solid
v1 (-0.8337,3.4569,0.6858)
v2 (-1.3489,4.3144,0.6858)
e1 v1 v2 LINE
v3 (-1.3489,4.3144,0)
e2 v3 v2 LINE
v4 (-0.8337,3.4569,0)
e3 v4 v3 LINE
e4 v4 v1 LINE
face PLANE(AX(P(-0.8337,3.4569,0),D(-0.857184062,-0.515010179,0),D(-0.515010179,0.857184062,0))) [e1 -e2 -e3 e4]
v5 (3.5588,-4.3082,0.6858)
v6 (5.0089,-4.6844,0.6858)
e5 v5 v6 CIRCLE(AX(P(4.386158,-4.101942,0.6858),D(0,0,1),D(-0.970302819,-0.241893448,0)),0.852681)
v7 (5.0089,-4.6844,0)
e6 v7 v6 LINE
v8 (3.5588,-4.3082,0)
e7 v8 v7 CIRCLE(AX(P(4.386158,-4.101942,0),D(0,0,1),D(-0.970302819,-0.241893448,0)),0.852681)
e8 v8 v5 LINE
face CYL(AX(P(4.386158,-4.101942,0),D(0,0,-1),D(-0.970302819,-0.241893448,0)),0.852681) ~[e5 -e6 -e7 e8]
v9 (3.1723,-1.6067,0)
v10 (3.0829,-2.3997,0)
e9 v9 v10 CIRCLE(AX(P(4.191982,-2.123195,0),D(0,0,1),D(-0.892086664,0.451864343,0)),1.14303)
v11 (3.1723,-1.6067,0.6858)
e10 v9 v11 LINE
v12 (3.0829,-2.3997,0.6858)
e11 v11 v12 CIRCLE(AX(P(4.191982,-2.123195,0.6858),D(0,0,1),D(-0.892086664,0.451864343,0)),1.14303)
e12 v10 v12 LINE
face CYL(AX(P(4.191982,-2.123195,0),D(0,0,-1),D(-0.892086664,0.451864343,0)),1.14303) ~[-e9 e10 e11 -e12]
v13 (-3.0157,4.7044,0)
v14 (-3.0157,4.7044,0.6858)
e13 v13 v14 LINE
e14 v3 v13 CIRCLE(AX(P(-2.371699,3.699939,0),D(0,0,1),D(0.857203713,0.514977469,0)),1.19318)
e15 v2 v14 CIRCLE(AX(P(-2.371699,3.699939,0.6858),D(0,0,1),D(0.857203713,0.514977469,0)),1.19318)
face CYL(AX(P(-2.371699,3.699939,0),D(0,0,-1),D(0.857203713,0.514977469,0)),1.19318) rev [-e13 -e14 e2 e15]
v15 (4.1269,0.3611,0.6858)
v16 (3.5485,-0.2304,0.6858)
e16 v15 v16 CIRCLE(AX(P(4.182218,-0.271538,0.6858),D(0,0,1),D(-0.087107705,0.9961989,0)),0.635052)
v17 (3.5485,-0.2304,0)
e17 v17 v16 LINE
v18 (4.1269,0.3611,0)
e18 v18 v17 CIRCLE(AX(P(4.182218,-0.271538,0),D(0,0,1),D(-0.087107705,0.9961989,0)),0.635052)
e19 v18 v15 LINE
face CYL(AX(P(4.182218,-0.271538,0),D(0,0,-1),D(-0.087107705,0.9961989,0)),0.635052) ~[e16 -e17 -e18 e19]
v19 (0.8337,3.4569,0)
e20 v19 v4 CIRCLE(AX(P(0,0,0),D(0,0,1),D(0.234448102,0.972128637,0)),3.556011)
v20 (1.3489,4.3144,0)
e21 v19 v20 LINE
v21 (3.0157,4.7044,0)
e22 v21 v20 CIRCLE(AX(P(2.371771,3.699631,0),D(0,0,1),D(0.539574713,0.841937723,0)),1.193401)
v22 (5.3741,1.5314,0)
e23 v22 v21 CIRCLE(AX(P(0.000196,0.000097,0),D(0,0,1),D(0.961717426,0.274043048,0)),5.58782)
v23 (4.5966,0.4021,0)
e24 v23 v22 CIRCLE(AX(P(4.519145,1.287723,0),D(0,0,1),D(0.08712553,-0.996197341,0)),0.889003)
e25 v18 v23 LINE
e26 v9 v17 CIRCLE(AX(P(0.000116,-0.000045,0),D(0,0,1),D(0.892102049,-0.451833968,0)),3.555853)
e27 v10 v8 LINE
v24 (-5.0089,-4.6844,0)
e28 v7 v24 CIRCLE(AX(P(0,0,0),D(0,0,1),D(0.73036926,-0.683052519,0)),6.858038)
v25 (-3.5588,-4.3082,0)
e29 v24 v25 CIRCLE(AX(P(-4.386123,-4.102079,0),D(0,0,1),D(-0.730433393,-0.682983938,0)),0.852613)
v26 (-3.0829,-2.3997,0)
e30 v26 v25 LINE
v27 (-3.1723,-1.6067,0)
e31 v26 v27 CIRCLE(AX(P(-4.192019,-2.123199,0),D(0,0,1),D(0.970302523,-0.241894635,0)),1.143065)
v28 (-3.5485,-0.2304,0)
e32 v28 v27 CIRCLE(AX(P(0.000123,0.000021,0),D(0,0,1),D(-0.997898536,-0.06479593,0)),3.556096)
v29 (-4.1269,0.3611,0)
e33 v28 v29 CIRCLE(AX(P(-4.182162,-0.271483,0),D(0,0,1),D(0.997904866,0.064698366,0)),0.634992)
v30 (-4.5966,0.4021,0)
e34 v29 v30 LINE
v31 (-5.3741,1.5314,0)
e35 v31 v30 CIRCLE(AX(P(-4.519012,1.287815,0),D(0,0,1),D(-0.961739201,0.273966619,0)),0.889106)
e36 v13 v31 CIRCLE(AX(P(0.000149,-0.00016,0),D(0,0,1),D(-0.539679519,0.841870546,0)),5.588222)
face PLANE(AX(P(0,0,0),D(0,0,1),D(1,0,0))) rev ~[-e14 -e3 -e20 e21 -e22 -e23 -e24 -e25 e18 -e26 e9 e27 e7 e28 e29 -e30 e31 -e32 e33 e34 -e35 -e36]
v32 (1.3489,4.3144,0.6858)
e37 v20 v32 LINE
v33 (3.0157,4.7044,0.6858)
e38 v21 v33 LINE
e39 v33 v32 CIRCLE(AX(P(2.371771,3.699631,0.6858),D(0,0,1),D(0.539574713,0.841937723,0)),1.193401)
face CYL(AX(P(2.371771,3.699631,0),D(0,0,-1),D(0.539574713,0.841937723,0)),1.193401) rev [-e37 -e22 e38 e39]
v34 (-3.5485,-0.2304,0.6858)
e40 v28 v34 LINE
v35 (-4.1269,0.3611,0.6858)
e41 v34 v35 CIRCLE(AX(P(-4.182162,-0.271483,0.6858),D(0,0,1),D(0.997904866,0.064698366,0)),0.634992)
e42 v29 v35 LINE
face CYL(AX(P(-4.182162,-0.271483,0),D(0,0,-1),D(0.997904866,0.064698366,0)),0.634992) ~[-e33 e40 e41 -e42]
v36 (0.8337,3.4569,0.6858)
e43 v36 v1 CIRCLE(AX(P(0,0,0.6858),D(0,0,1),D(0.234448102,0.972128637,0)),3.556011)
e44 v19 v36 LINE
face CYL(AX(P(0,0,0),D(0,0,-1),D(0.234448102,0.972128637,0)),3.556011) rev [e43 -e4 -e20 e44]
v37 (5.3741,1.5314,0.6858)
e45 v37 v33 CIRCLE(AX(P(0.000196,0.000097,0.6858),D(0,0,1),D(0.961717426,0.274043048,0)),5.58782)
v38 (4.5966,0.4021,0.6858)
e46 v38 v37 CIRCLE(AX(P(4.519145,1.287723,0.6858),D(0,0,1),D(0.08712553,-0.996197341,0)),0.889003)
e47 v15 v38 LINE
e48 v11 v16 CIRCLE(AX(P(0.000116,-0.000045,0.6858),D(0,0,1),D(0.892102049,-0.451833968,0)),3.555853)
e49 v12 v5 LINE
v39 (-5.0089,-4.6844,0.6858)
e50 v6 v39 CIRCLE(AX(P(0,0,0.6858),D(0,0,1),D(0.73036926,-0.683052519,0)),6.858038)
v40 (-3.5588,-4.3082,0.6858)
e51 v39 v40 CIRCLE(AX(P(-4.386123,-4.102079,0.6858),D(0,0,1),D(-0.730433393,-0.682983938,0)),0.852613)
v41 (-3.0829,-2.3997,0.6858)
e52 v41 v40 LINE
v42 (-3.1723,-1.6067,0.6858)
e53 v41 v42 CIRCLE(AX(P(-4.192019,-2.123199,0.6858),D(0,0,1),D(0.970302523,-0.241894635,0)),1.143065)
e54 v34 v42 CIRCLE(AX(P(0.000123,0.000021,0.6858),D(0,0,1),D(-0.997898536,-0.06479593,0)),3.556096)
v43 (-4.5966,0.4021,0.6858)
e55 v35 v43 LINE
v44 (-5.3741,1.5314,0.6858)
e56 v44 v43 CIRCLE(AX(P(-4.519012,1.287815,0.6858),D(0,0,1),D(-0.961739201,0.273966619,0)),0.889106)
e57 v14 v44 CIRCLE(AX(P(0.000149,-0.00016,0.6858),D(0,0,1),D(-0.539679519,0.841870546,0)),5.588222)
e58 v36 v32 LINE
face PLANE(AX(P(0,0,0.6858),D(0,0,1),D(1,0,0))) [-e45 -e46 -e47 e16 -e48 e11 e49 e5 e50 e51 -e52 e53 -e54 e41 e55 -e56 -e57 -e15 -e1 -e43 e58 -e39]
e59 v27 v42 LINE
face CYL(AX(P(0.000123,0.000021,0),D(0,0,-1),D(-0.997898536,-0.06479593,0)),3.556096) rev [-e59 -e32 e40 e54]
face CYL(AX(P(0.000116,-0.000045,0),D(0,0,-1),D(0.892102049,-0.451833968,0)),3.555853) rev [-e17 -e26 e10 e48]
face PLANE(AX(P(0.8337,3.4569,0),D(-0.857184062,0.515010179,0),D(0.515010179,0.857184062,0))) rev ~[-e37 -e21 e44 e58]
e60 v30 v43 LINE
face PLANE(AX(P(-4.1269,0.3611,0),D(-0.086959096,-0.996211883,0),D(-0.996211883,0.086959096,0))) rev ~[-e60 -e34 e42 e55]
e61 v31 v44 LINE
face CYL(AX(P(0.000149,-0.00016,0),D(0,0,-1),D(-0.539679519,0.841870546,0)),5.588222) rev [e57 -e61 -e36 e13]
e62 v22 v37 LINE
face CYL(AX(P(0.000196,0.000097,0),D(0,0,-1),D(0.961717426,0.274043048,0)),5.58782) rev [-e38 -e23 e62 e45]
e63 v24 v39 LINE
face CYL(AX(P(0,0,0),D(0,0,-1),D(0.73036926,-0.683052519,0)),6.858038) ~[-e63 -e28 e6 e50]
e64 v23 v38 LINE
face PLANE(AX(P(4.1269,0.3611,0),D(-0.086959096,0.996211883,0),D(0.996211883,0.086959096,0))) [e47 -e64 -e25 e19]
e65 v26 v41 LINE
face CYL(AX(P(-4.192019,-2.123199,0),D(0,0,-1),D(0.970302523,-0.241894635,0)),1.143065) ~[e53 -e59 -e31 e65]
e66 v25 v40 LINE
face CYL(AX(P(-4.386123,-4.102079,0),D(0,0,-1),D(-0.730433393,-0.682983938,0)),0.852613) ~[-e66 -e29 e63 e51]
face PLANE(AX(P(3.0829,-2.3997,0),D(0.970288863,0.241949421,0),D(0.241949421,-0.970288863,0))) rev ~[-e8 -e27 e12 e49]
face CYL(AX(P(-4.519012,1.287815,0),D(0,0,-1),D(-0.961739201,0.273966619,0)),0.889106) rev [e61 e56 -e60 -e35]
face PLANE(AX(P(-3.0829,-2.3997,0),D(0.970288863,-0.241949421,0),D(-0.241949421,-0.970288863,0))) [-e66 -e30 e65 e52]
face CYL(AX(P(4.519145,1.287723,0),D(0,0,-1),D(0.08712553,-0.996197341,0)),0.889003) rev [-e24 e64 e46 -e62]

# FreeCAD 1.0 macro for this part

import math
import FreeCAD as App
import Part
import Sketcher
from FreeCAD import Vector
Q = App.Units.Quantity

doc = App.newDocument("Part")
body = doc.addObject("PartDesign::Body", "Body")

# Sketch on XY plane
sketch1 = doc.addObject("Sketcher::SketchObject", "Sketch")
body.addObject(sketch1)
sketch1.AttachmentSupport = (doc.XY_Plane, [""])
sketch1.MapMode = "FlatFace"
sketch1.addGeometry(Part.ArcOfCircle(Part.Circle(Vector(4.39, -4.1, 0), Vector(0, 0, 1), 0.85), math.radians(-166), math.radians(-43)), False)
sketch1.addGeometry(Part.ArcOfCircle(Part.Circle(Vector(0, 0, 0), Vector(0, 0, 1), 6.86), math.radians(-43), math.radians(223)), False)
sketch1.addGeometry(Part.ArcOfCircle(Part.Circle(Vector(-4.39, -4.1, 0), Vector(0, 0, 1), 0.85), math.radians(-137), math.radians(-14)), False)
sketch1.addGeometry(Part.LineSegment(Vector(-3.56, -4.31, 0), Vector(-3.08, -2.4, 0)), False)
sketch1.addGeometry(Part.ArcOfCircle(Part.Circle(Vector(-4.19, -2.12, 0), Vector(0, 0, 1), 1.14), math.radians(-14), math.radians(27)), False)
sketch1.addGeometry(Part.ArcOfCircle(Part.Circle(Vector(0, 0, 0), Vector(0, 0, 1), 3.56), math.radians(-176), math.radians(-153)), False)
sketch1.addGeometry(Part.ArcOfCircle(Part.Circle(Vector(-4.18, -0.27, 0), Vector(0, 0, 1), 0.64), math.radians(4), math.radians(85)), False)
sketch1.addGeometry(Part.LineSegment(Vector(-4.13, 0.36, 0), Vector(-4.6, 0.4, 0)), False)
sketch1.addGeometry(Part.ArcOfCircle(Part.Circle(Vector(-4.52, 1.29, 0), Vector(0, 0, 1), 0.89), math.radians(164), math.radians(265)), False)
sketch1.addGeometry(Part.ArcOfCircle(Part.Circle(Vector(0, 0, 0), Vector(0, 0, 1), 5.59), math.radians(123), math.radians(164)), False)
sketch1.addGeometry(Part.ArcOfCircle(Part.Circle(Vector(-2.37, 3.7, 0), Vector(0, 0, 1), 1.19), math.radians(31), math.radians(123)), False)
sketch1.addGeometry(Part.LineSegment(Vector(-1.35, 4.31, 0), Vector(-0.83, 3.46, 0)), False)
sketch1.addGeometry(Part.ArcOfCircle(Part.Circle(Vector(0, 0, 0), Vector(0, 0, 1), 3.56), math.radians(76), math.radians(104)), False)
sketch1.addGeometry(Part.LineSegment(Vector(0.83, 3.46, 0), Vector(1.35, 4.31, 0)), False)
sketch1.addGeometry(Part.ArcOfCircle(Part.Circle(Vector(2.37, 3.7, 0), Vector(0, 0, 1), 1.19), math.radians(57), math.radians(149)), False)
sketch1.addGeometry(Part.ArcOfCircle(Part.Circle(Vector(0, 0, 0), Vector(0, 0, 1), 5.59), math.radians(16), math.radians(57)), False)
sketch1.addGeometry(Part.ArcOfCircle(Part.Circle(Vector(4.52, 1.29, 0), Vector(0, 0, 1), 0.89), math.radians(-85), math.radians(16)), False)
sketch1.addGeometry(Part.LineSegment(Vector(4.6, 0.4, 0), Vector(4.13, 0.36, 0)), False)
sketch1.addGeometry(Part.ArcOfCircle(Part.Circle(Vector(4.18, -0.27, 0), Vector(0, 0, 1), 0.64), math.radians(95), math.radians(176)), False)
sketch1.addGeometry(Part.ArcOfCircle(Part.Circle(Vector(0, 0, 0), Vector(0, 0, 1), 3.56), math.radians(-27), math.radians(-4)), False)
sketch1.addGeometry(Part.ArcOfCircle(Part.Circle(Vector(4.19, -2.12, 0), Vector(0, 0, 1), 1.14), math.radians(153), math.radians(194)), False)
sketch1.addGeometry(Part.LineSegment(Vector(3.08, -2.4, 0), Vector(3.56, -4.31, 0)), False)
sketch1.addConstraint(Sketcher.Constraint("Tangent", 0, 2, 1, 1))
sketch1.addConstraint(Sketcher.Constraint("Tangent", 1, 2, 2, 1))
sketch1.addConstraint(Sketcher.Constraint("Tangent", 2, 2, 3, 1))
sketch1.addConstraint(Sketcher.Constraint("Tangent", 3, 2, 4, 1))
sketch1.addConstraint(Sketcher.Constraint("Tangent", 4, 2, 5, 2))
sketch1.addConstraint(Sketcher.Constraint("Tangent", 5, 1, 6, 1))
sketch1.addConstraint(Sketcher.Constraint("Tangent", 6, 2, 7, 1))
sketch1.addConstraint(Sketcher.Constraint("Tangent", 7, 2, 8, 2))
sketch1.addConstraint(Sketcher.Constraint("Tangent", 8, 1, 9, 2))
sketch1.addConstraint(Sketcher.Constraint("Tangent", 9, 1, 10, 2))
sketch1.addConstraint(Sketcher.Constraint("Tangent", 10, 1, 11, 1))
sketch1.addConstraint(Sketcher.Constraint("Coincident", 11, 2, 12, 2))
sketch1.addConstraint(Sketcher.Constraint("Coincident", 12, 1, 13, 1))
sketch1.addConstraint(Sketcher.Constraint("Tangent", 13, 2, 14, 2))
sketch1.addConstraint(Sketcher.Constraint("Tangent", 14, 1, 15, 2))
sketch1.addConstraint(Sketcher.Constraint("Tangent", 15, 1, 16, 2))
sketch1.addConstraint(Sketcher.Constraint("Tangent", 16, 1, 17, 1))
sketch1.addConstraint(Sketcher.Constraint("Tangent", 17, 2, 18, 1))
sketch1.addConstraint(Sketcher.Constraint("Tangent", 18, 2, 19, 2))
sketch1.addConstraint(Sketcher.Constraint("Tangent", 19, 1, 20, 1))
sketch1.addConstraint(Sketcher.Constraint("Tangent", 20, 2, 21, 1))
sketch1.addConstraint(Sketcher.Constraint("Tangent", 21, 2, 0, 1))
sketch1.addConstraint(Sketcher.Constraint("Coincident", 1, 3, -1, 1))
sketch1.addConstraint(Sketcher.Constraint("Coincident", 5, 3, -1, 1))
sketch1.addConstraint(Sketcher.Constraint("Coincident", 9, 3, -1, 1))
sketch1.addConstraint(Sketcher.Constraint("Coincident", 12, 3, -1, 1))
sketch1.addConstraint(Sketcher.Constraint("Coincident", 15, 3, -1, 1))
sketch1.addConstraint(Sketcher.Constraint("Coincident", 19, 3, -1, 1))
sketch1.addConstraint(Sketcher.Constraint("Equal", 0, 2))
sketch1.addConstraint(Sketcher.Constraint("Equal", 5, 12))
sketch1.addConstraint(Sketcher.Constraint("Equal", 10, 14))
sketch1.addConstraint(Sketcher.Constraint("Equal", 9, 15))
sketch1.addConstraint(Sketcher.Constraint("Equal", 8, 16))
sketch1.addConstraint(Sketcher.Constraint("Equal", 6, 18))
sketch1.addConstraint(Sketcher.Constraint("Equal", 12, 19))
sketch1.addConstraint(Sketcher.Constraint("Equal", 4, 20))
sketch1.addConstraint(Sketcher.Constraint("Symmetric", 10, 1, 13, 2, -2))
sketch1.addConstraint(Sketcher.Constraint("Symmetric", 7, 2, 16, 1, -2))
sketch1.addConstraint(Sketcher.Constraint("Symmetric", 3, 2, 20, 2, -2))
sketch1.addConstraint(Sketcher.Constraint("Radius", 1, Q("0.27 in")))
sketch1.addConstraint(Sketcher.Constraint("Radius", 5, Q("0.14 in")))
sketch1.addConstraint(Sketcher.Constraint("Radius", 4, Q("0.045 in")))
sketch1.addConstraint(Sketcher.Constraint("Radius", 6, Q("0.025 in")))
sketch1.addConstraint(Sketcher.Constraint("Radius", 8, Q("0.035 in")))
sketch1.addConstraint(Sketcher.Constraint("Radius", 0, Q("0.8526 mm")))
sketch1.addConstraint(Sketcher.Constraint("Radius", 9, Q("0.22 in")))
sketch1.addConstraint(Sketcher.Constraint("Radius", 10, Q("1.1933 mm")))
sketch1.addConstraint(Sketcher.Constraint("DistanceY", 6, 2, 9, 1, Q("0.171 in")))
sketch1.addConstraint(Sketcher.Constraint("DistanceY", 0, 3, -1, 1, Q("0.1615 in")))
sketch1.addConstraint(Sketcher.Constraint("DistanceY", 4, 3, -1, 1, Q("0.0836 in")))
sketch1.addConstraint(Sketcher.Constraint("DistanceY", 6, 3, -1, 1, Q("0.0107 in")))
sketch1.addConstraint(Sketcher.Constraint("DistanceY", -1, 1, 8, 3, Q("0.0507 in")))
sketch1.addConstraint(Sketcher.Constraint("DistanceX", 10, 1, -1, 1, Q("0.0531 in")))
pad1 = doc.addObject("PartDesign::Pad", "Pad")
body.addObject(pad1)
pad1.Profile = sketch1
pad1.Length = Q("0.027 in")

doc.recompute()
